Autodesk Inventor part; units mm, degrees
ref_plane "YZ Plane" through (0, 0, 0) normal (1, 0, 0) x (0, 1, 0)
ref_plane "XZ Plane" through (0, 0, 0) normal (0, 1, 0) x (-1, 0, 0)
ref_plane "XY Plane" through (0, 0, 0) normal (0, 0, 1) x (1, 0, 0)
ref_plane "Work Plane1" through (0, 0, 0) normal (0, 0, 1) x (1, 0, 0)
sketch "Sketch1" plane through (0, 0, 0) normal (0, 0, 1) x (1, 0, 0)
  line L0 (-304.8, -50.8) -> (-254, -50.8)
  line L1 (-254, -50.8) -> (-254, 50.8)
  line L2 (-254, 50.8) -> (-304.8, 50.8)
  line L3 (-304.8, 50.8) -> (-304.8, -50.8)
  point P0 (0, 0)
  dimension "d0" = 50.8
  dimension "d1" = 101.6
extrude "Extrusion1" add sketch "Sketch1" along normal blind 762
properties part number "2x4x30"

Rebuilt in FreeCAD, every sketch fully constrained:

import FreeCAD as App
import Part
import Sketcher
from FreeCAD import Vector
Q = App.Units.Quantity

doc = App.newDocument("Part")
body = doc.addObject("PartDesign::Body", "Body")

# Sketch on XY plane
sketch1 = body.newObject("Sketcher::SketchObject", "Sketch")
sketch1.AttachmentSupport = (doc.getObject("XY_Plane"), [""])
sketch1.MapMode = "FlatFace"
sketch1.addGeometry(Part.LineSegment(Vector(-305, 51, 0), Vector(-305, -51, 0)), False)
sketch1.addGeometry(Part.LineSegment(Vector(-305, -51, 0), Vector(-254, -51, 0)), False)
sketch1.addGeometry(Part.LineSegment(Vector(-254, -51, 0), Vector(-254, 51, 0)), False)
sketch1.addGeometry(Part.LineSegment(Vector(-254, 51, 0), Vector(-305, 51, 0)), False)
sketch1.addConstraint(Sketcher.Constraint("Coincident", 0, 2, 1, 1))
sketch1.addConstraint(Sketcher.Constraint("Coincident", 1, 2, 2, 1))
sketch1.addConstraint(Sketcher.Constraint("Coincident", 2, 2, 3, 1))
sketch1.addConstraint(Sketcher.Constraint("Coincident", 3, 2, 0, 1))
sketch1.addConstraint(Sketcher.Constraint("Vertical", 0))
sketch1.addConstraint(Sketcher.Constraint("Horizontal", 1))
sketch1.addConstraint(Sketcher.Constraint("Vertical", 2))
sketch1.addConstraint(Sketcher.Constraint("Horizontal", 3))
sketch1.addConstraint(Sketcher.Constraint("DistanceX", 1, 1, 1, 2, Q("2 in")))
sketch1.addConstraint(Sketcher.Constraint("DistanceY", 0, 2, 0, 1, Q("4 in")))
sketch1.addConstraint(Sketcher.Constraint("DistanceY", 0, 2, -1, 1, Q("2 in")))
sketch1.addConstraint(Sketcher.Constraint("DistanceX", 0, 2, -1, 1, Q("12 in")))
pad1 = body.newObject("PartDesign::Pad", "Pad")
pad1.Profile = sketch1
pad1.Length = Q("30 in")

doc.recompute()
